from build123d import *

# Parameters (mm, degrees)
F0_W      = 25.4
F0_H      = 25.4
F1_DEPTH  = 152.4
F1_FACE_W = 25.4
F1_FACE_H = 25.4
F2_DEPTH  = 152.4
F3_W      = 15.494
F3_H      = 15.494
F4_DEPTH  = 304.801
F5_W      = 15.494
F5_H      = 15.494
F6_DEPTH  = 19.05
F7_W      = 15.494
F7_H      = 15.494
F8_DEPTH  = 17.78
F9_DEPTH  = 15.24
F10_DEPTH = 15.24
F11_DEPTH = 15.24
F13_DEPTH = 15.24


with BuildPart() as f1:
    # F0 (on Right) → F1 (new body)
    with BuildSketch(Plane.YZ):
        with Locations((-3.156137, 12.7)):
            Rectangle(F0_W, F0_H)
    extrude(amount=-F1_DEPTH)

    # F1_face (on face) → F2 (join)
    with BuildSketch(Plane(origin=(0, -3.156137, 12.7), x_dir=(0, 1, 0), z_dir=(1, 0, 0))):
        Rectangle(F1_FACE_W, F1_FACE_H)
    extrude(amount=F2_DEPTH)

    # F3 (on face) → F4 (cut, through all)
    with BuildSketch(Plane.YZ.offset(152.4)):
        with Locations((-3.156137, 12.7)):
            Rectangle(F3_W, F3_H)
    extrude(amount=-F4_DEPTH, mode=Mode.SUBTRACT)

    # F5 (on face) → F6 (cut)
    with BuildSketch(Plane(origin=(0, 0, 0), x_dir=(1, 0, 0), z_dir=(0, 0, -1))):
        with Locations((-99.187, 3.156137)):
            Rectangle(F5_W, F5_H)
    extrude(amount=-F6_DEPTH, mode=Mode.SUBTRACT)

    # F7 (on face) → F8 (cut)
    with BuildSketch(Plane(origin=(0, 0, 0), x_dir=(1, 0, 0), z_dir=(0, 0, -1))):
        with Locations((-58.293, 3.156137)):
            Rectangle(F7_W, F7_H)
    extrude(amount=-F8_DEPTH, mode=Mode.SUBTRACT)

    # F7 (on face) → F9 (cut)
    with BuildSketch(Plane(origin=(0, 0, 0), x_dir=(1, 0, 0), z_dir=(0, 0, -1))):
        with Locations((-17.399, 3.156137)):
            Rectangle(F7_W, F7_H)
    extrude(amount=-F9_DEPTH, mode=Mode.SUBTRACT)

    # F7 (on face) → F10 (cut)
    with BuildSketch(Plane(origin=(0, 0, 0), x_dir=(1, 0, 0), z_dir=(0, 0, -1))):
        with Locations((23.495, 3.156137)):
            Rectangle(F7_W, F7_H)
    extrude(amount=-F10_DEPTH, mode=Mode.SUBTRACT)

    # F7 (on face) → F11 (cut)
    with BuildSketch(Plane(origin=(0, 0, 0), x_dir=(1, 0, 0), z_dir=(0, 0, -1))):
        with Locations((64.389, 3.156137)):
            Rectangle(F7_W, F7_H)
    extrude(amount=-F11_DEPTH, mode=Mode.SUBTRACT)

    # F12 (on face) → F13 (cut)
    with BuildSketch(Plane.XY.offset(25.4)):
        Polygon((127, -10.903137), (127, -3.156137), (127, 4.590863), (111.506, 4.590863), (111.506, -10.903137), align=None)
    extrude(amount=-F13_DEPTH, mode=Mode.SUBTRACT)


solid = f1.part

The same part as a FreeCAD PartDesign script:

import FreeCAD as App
import Part
import Sketcher

V = App.Vector
Q = App.Units.Quantity


def add_polygon(sketch, points):
    """Adds a closed chain of lines whose ends are joined by coincident constraints."""
    first, n = sketch.GeometryCount, len(points)
    for a, b in zip(points, points[1:] + points[:1]):
        sketch.addGeometry(Part.LineSegment(App.Vector(*a, 0), App.Vector(*b, 0)), False)
    for i in range(n):
        sketch.addConstraint(Sketcher.Constraint("Coincident", first + i, 2, first + (i + 1) % n, 1))

doc = App.newDocument("Part")
params = doc.addObject("Spreadsheet::Sheet", "Params")
for row, (alias, value) in enumerate([
    ("sketch1_width", "1 in"),
    ("pad1_length", "6 in"),
    ("sketch2_width", "1 in"),
    ("pad2_length", "6 in"),
    ("sketch3_width", "0.61 in"),
    ("sketch4_width", "0.61 in"),
    ("pocket2_length", "0.75 in"),
    ("sketch5_width", "0.61 in"),
    ("pocket3_length", "0.7 in"),
    ("sketch6_width", "0.61 in"),
    ("pocket4_length", "0.6 in"),
    ("sketch7_width", "0.61 in"),
    ("pocket5_length", "0.6 in"),
    ("sketch8_width", "0.61 in"),
    ("pocket6_length", "0.6 in"),
    ("sketch9_width", "0.61 in"),
    ("pocket7_length", "0.6 in"),
], start=1):
    params.set(f"A{row}", alias)
    params.set(f"B{row}", "=" + value)
    params.setAlias(f"B{row}", alias)

body = doc.addObject("PartDesign::Body", "Body")

sketch1 = body.newObject("Sketcher::SketchObject", "Sketch")
sketch1.AttachmentSupport = (doc.getObject("YZ_Plane"), [""])
sketch1.MapMode = "FlatFace"
add_polygon(sketch1, [(-15.856137, 25.4), (-15.856137, 0), (9.543863, 0), (9.543863, 25.4)])
sketch1.addConstraint([
    Sketcher.Constraint("Vertical", 0),
    Sketcher.Constraint("Horizontal", 1),
    Sketcher.Constraint("Vertical", 2),
    Sketcher.Constraint("Horizontal", 3),
    Sketcher.Constraint("PointOnObject", 0, 2, -1),
    Sketcher.Constraint("Equal", 3, 0),
    Sketcher.Constraint("DistanceX", 1, 1, 1, 2, Q("1 in")),
    Sketcher.Constraint("DistanceX", 0, 2, -1, 1, Q("15.856137 mm")),
])
sketch1.setExpression("Constraints[10]", "Params.sketch1_width")
pad1 = body.newObject("PartDesign::Pad", "Pad")
pad1.Profile = sketch1
pad1.setExpression("Length", "Params.pad1_length")
pad1.Reversed = True

sketch2 = body.newObject("Sketcher::SketchObject", "Sketch001")
sketch2.AttachmentSupport = (doc.getObject("YZ_Plane"), [""])
sketch2.MapMode = "FlatFace"
add_polygon(sketch2, [(-15.856137, 25.4), (-15.856137, 0), (9.543863, 0), (9.543863, 25.4)])
sketch2.addConstraint([
    Sketcher.Constraint("Vertical", 0),
    Sketcher.Constraint("Horizontal", 1),
    Sketcher.Constraint("Vertical", 2),
    Sketcher.Constraint("Horizontal", 3),
    Sketcher.Constraint("PointOnObject", 0, 2, -1),
    Sketcher.Constraint("Equal", 3, 0),
    Sketcher.Constraint("DistanceX", 1, 1, 1, 2, Q("1 in")),
    Sketcher.Constraint("DistanceX", 0, 2, -1, 1, Q("15.856137 mm")),
])
sketch2.setExpression("Constraints[10]", "Params.sketch2_width")
pad2 = body.newObject("PartDesign::Pad", "Pad001")
pad2.Profile = sketch2
pad2.setExpression("Length", "Params.pad2_length")

sketch3 = body.newObject("Sketcher::SketchObject", "Sketch002")
sketch3.AttachmentSupport = (doc.getObject("YZ_Plane"), [""])
sketch3.MapMode = "FlatFace"
sketch3.AttachmentOffset = App.Placement(V(0, 0, 6 * 25.4), App.Rotation())
add_polygon(sketch3, [(-10.903137, 20.447), (-10.903137, 4.953), (4.590863, 4.953), (4.590863, 20.447)])
sketch3.addConstraint([
    Sketcher.Constraint("Vertical", 0),
    Sketcher.Constraint("Horizontal", 1),
    Sketcher.Constraint("Vertical", 2),
    Sketcher.Constraint("Horizontal", 3),
    Sketcher.Constraint("Equal", 3, 0),
    Sketcher.Constraint("DistanceX", 1, 1, 1, 2, Q("0.61 in")),
    Sketcher.Constraint("DistanceY", -1, 1, 0, 2, Q("0.195 in")),
    Sketcher.Constraint("DistanceX", 0, 2, -1, 1, Q("10.903137 mm")),
])
sketch3.setExpression("Constraints[9]", "Params.sketch3_width")
pocket1 = body.newObject("PartDesign::Pocket", "Pocket")
pocket1.Profile = sketch3
pocket1.Type = "ThroughAll"

sketch4 = body.newObject("Sketcher::SketchObject", "Sketch003")
sketch4.AttachmentSupport = (doc.getObject("XY_Plane"), [""])
sketch4.MapMode = "FlatFace"
add_polygon(sketch4, [(-106.934, -10.903137), (-106.934, 4.590863), (-91.44, 4.590863), (-91.44, -10.903137)])
sketch4.addConstraint([
    Sketcher.Constraint("Vertical", 0),
    Sketcher.Constraint("Horizontal", 1),
    Sketcher.Constraint("Vertical", 2),
    Sketcher.Constraint("Horizontal", 3),
    Sketcher.Constraint("Equal", 3, 0),
    Sketcher.Constraint("DistanceX", 1, 1, 1, 2, Q("0.61 in")),
    Sketcher.Constraint("DistanceX", 1, 2, -1, 1, Q("3.6 in")),
    Sketcher.Constraint("DistanceY", -1, 1, 0, 2, Q("4.590863 mm")),
])
sketch4.setExpression("Constraints[9]", "Params.sketch4_width")
pocket2 = body.newObject("PartDesign::Pocket", "Pocket001")
pocket2.Profile = sketch4
pocket2.setExpression("Length", "Params.pocket2_length")
pocket2.Reversed = True

sketch5 = body.newObject("Sketcher::SketchObject", "Sketch004")
sketch5.AttachmentSupport = (doc.getObject("XY_Plane"), [""])
sketch5.MapMode = "FlatFace"
add_polygon(sketch5, [(-66.04, -10.903137), (-66.04, 4.590863), (-50.546, 4.590863), (-50.546, -10.903137)])
sketch5.addConstraint([
    Sketcher.Constraint("Vertical", 0),
    Sketcher.Constraint("Horizontal", 1),
    Sketcher.Constraint("Vertical", 2),
    Sketcher.Constraint("Horizontal", 3),
    Sketcher.Constraint("Equal", 3, 0),
    Sketcher.Constraint("DistanceX", 1, 1, 1, 2, Q("0.61 in")),
    Sketcher.Constraint("DistanceX", 0, 2, -1, 1, Q("2.6 in")),
    Sketcher.Constraint("DistanceY", -1, 1, 0, 2, Q("4.590863 mm")),
])
sketch5.setExpression("Constraints[9]", "Params.sketch5_width")
pocket3 = body.newObject("PartDesign::Pocket", "Pocket002")
pocket3.Profile = sketch5
pocket3.setExpression("Length", "Params.pocket3_length")
pocket3.Reversed = True

sketch6 = body.newObject("Sketcher::SketchObject", "Sketch005")
sketch6.AttachmentSupport = (doc.getObject("XY_Plane"), [""])
sketch6.MapMode = "FlatFace"
add_polygon(sketch6, [(-25.146, -10.903137), (-25.146, 4.590863), (-9.652, 4.590863), (-9.652, -10.903137)])
sketch6.addConstraint([
    Sketcher.Constraint("Vertical", 0),
    Sketcher.Constraint("Horizontal", 1),
    Sketcher.Constraint("Vertical", 2),
    Sketcher.Constraint("Horizontal", 3),
    Sketcher.Constraint("Equal", 3, 0),
    Sketcher.Constraint("DistanceX", 1, 1, 1, 2, Q("0.61 in")),
    Sketcher.Constraint("DistanceX", 0, 2, -1, 1, Q("0.99 in")),
    Sketcher.Constraint("DistanceY", -1, 1, 0, 2, Q("4.590863 mm")),
])
sketch6.setExpression("Constraints[9]", "Params.sketch6_width")
pocket4 = body.newObject("PartDesign::Pocket", "Pocket003")
pocket4.Profile = sketch6
pocket4.setExpression("Length", "Params.pocket4_length")
pocket4.Reversed = True

sketch7 = body.newObject("Sketcher::SketchObject", "Sketch006")
sketch7.AttachmentSupport = (doc.getObject("XY_Plane"), [""])
sketch7.MapMode = "FlatFace"
add_polygon(sketch7, [(15.748, -10.903137), (15.748, 4.590863), (31.242, 4.590863), (31.242, -10.903137)])
sketch7.addConstraint([
    Sketcher.Constraint("Vertical", 0),
    Sketcher.Constraint("Horizontal", 1),
    Sketcher.Constraint("Vertical", 2),
    Sketcher.Constraint("Horizontal", 3),
    Sketcher.Constraint("Equal", 3, 0),
    Sketcher.Constraint("DistanceX", 1, 1, 1, 2, Q("0.61 in")),
    Sketcher.Constraint("DistanceX", -1, 1, 0, 2, Q("0.62 in")),
    Sketcher.Constraint("DistanceY", -1, 1, 0, 2, Q("4.590863 mm")),
])
sketch7.setExpression("Constraints[9]", "Params.sketch7_width")
pocket5 = body.newObject("PartDesign::Pocket", "Pocket004")
pocket5.Profile = sketch7
pocket5.setExpression("Length", "Params.pocket5_length")
pocket5.Reversed = True

sketch8 = body.newObject("Sketcher::SketchObject", "Sketch007")
sketch8.AttachmentSupport = (doc.getObject("XY_Plane"), [""])
sketch8.MapMode = "FlatFace"
add_polygon(sketch8, [(56.642, -10.903137), (56.642, 4.590863), (72.136, 4.590863), (72.136, -10.903137)])
sketch8.addConstraint([
    Sketcher.Constraint("Vertical", 0),
    Sketcher.Constraint("Horizontal", 1),
    Sketcher.Constraint("Vertical", 2),
    Sketcher.Constraint("Horizontal", 3),
    Sketcher.Constraint("Equal", 3, 0),
    Sketcher.Constraint("DistanceX", 1, 1, 1, 2, Q("0.61 in")),
    Sketcher.Constraint("DistanceX", -1, 1, 0, 2, Q("2.23 in")),
    Sketcher.Constraint("DistanceY", -1, 1, 0, 2, Q("4.590863 mm")),
])
sketch8.setExpression("Constraints[9]", "Params.sketch8_width")
pocket6 = body.newObject("PartDesign::Pocket", "Pocket005")
pocket6.Profile = sketch8
pocket6.setExpression("Length", "Params.pocket6_length")
pocket6.Reversed = True

sketch9 = body.newObject("Sketcher::SketchObject", "Sketch008")
sketch9.AttachmentSupport = (doc.getObject("XY_Plane"), [""])
sketch9.MapMode = "FlatFace"
sketch9.AttachmentOffset = App.Placement(V(0, 0, 1 * 25.4), App.Rotation())
add_polygon(sketch9, [(127, -10.903137), (127, 4.590863), (111.506, 4.590863), (111.506, -10.903137)])
sketch9.addConstraint([
    Sketcher.Constraint("Vertical", 0),
    Sketcher.Constraint("Horizontal", 1),
    Sketcher.Constraint("Vertical", 2),
    Sketcher.Constraint("Horizontal", 3),
    Sketcher.Constraint("Equal", 3, 0),
    Sketcher.Constraint("DistanceX", -1, 1, 0, 2, Q("5 in")),
    Sketcher.Constraint("DistanceX", 1, 2, 1, 1, Q("0.61 in")),
    Sketcher.Constraint("DistanceY", -1, 1, 0, 2, Q("4.590863 mm")),
])
sketch9.setExpression("Constraints[10]", "Params.sketch9_width")
pocket7 = body.newObject("PartDesign::Pocket", "Pocket006")
pocket7.Profile = sketch9
pocket7.setExpression("Length", "Params.pocket7_length")

doc.recompute()
